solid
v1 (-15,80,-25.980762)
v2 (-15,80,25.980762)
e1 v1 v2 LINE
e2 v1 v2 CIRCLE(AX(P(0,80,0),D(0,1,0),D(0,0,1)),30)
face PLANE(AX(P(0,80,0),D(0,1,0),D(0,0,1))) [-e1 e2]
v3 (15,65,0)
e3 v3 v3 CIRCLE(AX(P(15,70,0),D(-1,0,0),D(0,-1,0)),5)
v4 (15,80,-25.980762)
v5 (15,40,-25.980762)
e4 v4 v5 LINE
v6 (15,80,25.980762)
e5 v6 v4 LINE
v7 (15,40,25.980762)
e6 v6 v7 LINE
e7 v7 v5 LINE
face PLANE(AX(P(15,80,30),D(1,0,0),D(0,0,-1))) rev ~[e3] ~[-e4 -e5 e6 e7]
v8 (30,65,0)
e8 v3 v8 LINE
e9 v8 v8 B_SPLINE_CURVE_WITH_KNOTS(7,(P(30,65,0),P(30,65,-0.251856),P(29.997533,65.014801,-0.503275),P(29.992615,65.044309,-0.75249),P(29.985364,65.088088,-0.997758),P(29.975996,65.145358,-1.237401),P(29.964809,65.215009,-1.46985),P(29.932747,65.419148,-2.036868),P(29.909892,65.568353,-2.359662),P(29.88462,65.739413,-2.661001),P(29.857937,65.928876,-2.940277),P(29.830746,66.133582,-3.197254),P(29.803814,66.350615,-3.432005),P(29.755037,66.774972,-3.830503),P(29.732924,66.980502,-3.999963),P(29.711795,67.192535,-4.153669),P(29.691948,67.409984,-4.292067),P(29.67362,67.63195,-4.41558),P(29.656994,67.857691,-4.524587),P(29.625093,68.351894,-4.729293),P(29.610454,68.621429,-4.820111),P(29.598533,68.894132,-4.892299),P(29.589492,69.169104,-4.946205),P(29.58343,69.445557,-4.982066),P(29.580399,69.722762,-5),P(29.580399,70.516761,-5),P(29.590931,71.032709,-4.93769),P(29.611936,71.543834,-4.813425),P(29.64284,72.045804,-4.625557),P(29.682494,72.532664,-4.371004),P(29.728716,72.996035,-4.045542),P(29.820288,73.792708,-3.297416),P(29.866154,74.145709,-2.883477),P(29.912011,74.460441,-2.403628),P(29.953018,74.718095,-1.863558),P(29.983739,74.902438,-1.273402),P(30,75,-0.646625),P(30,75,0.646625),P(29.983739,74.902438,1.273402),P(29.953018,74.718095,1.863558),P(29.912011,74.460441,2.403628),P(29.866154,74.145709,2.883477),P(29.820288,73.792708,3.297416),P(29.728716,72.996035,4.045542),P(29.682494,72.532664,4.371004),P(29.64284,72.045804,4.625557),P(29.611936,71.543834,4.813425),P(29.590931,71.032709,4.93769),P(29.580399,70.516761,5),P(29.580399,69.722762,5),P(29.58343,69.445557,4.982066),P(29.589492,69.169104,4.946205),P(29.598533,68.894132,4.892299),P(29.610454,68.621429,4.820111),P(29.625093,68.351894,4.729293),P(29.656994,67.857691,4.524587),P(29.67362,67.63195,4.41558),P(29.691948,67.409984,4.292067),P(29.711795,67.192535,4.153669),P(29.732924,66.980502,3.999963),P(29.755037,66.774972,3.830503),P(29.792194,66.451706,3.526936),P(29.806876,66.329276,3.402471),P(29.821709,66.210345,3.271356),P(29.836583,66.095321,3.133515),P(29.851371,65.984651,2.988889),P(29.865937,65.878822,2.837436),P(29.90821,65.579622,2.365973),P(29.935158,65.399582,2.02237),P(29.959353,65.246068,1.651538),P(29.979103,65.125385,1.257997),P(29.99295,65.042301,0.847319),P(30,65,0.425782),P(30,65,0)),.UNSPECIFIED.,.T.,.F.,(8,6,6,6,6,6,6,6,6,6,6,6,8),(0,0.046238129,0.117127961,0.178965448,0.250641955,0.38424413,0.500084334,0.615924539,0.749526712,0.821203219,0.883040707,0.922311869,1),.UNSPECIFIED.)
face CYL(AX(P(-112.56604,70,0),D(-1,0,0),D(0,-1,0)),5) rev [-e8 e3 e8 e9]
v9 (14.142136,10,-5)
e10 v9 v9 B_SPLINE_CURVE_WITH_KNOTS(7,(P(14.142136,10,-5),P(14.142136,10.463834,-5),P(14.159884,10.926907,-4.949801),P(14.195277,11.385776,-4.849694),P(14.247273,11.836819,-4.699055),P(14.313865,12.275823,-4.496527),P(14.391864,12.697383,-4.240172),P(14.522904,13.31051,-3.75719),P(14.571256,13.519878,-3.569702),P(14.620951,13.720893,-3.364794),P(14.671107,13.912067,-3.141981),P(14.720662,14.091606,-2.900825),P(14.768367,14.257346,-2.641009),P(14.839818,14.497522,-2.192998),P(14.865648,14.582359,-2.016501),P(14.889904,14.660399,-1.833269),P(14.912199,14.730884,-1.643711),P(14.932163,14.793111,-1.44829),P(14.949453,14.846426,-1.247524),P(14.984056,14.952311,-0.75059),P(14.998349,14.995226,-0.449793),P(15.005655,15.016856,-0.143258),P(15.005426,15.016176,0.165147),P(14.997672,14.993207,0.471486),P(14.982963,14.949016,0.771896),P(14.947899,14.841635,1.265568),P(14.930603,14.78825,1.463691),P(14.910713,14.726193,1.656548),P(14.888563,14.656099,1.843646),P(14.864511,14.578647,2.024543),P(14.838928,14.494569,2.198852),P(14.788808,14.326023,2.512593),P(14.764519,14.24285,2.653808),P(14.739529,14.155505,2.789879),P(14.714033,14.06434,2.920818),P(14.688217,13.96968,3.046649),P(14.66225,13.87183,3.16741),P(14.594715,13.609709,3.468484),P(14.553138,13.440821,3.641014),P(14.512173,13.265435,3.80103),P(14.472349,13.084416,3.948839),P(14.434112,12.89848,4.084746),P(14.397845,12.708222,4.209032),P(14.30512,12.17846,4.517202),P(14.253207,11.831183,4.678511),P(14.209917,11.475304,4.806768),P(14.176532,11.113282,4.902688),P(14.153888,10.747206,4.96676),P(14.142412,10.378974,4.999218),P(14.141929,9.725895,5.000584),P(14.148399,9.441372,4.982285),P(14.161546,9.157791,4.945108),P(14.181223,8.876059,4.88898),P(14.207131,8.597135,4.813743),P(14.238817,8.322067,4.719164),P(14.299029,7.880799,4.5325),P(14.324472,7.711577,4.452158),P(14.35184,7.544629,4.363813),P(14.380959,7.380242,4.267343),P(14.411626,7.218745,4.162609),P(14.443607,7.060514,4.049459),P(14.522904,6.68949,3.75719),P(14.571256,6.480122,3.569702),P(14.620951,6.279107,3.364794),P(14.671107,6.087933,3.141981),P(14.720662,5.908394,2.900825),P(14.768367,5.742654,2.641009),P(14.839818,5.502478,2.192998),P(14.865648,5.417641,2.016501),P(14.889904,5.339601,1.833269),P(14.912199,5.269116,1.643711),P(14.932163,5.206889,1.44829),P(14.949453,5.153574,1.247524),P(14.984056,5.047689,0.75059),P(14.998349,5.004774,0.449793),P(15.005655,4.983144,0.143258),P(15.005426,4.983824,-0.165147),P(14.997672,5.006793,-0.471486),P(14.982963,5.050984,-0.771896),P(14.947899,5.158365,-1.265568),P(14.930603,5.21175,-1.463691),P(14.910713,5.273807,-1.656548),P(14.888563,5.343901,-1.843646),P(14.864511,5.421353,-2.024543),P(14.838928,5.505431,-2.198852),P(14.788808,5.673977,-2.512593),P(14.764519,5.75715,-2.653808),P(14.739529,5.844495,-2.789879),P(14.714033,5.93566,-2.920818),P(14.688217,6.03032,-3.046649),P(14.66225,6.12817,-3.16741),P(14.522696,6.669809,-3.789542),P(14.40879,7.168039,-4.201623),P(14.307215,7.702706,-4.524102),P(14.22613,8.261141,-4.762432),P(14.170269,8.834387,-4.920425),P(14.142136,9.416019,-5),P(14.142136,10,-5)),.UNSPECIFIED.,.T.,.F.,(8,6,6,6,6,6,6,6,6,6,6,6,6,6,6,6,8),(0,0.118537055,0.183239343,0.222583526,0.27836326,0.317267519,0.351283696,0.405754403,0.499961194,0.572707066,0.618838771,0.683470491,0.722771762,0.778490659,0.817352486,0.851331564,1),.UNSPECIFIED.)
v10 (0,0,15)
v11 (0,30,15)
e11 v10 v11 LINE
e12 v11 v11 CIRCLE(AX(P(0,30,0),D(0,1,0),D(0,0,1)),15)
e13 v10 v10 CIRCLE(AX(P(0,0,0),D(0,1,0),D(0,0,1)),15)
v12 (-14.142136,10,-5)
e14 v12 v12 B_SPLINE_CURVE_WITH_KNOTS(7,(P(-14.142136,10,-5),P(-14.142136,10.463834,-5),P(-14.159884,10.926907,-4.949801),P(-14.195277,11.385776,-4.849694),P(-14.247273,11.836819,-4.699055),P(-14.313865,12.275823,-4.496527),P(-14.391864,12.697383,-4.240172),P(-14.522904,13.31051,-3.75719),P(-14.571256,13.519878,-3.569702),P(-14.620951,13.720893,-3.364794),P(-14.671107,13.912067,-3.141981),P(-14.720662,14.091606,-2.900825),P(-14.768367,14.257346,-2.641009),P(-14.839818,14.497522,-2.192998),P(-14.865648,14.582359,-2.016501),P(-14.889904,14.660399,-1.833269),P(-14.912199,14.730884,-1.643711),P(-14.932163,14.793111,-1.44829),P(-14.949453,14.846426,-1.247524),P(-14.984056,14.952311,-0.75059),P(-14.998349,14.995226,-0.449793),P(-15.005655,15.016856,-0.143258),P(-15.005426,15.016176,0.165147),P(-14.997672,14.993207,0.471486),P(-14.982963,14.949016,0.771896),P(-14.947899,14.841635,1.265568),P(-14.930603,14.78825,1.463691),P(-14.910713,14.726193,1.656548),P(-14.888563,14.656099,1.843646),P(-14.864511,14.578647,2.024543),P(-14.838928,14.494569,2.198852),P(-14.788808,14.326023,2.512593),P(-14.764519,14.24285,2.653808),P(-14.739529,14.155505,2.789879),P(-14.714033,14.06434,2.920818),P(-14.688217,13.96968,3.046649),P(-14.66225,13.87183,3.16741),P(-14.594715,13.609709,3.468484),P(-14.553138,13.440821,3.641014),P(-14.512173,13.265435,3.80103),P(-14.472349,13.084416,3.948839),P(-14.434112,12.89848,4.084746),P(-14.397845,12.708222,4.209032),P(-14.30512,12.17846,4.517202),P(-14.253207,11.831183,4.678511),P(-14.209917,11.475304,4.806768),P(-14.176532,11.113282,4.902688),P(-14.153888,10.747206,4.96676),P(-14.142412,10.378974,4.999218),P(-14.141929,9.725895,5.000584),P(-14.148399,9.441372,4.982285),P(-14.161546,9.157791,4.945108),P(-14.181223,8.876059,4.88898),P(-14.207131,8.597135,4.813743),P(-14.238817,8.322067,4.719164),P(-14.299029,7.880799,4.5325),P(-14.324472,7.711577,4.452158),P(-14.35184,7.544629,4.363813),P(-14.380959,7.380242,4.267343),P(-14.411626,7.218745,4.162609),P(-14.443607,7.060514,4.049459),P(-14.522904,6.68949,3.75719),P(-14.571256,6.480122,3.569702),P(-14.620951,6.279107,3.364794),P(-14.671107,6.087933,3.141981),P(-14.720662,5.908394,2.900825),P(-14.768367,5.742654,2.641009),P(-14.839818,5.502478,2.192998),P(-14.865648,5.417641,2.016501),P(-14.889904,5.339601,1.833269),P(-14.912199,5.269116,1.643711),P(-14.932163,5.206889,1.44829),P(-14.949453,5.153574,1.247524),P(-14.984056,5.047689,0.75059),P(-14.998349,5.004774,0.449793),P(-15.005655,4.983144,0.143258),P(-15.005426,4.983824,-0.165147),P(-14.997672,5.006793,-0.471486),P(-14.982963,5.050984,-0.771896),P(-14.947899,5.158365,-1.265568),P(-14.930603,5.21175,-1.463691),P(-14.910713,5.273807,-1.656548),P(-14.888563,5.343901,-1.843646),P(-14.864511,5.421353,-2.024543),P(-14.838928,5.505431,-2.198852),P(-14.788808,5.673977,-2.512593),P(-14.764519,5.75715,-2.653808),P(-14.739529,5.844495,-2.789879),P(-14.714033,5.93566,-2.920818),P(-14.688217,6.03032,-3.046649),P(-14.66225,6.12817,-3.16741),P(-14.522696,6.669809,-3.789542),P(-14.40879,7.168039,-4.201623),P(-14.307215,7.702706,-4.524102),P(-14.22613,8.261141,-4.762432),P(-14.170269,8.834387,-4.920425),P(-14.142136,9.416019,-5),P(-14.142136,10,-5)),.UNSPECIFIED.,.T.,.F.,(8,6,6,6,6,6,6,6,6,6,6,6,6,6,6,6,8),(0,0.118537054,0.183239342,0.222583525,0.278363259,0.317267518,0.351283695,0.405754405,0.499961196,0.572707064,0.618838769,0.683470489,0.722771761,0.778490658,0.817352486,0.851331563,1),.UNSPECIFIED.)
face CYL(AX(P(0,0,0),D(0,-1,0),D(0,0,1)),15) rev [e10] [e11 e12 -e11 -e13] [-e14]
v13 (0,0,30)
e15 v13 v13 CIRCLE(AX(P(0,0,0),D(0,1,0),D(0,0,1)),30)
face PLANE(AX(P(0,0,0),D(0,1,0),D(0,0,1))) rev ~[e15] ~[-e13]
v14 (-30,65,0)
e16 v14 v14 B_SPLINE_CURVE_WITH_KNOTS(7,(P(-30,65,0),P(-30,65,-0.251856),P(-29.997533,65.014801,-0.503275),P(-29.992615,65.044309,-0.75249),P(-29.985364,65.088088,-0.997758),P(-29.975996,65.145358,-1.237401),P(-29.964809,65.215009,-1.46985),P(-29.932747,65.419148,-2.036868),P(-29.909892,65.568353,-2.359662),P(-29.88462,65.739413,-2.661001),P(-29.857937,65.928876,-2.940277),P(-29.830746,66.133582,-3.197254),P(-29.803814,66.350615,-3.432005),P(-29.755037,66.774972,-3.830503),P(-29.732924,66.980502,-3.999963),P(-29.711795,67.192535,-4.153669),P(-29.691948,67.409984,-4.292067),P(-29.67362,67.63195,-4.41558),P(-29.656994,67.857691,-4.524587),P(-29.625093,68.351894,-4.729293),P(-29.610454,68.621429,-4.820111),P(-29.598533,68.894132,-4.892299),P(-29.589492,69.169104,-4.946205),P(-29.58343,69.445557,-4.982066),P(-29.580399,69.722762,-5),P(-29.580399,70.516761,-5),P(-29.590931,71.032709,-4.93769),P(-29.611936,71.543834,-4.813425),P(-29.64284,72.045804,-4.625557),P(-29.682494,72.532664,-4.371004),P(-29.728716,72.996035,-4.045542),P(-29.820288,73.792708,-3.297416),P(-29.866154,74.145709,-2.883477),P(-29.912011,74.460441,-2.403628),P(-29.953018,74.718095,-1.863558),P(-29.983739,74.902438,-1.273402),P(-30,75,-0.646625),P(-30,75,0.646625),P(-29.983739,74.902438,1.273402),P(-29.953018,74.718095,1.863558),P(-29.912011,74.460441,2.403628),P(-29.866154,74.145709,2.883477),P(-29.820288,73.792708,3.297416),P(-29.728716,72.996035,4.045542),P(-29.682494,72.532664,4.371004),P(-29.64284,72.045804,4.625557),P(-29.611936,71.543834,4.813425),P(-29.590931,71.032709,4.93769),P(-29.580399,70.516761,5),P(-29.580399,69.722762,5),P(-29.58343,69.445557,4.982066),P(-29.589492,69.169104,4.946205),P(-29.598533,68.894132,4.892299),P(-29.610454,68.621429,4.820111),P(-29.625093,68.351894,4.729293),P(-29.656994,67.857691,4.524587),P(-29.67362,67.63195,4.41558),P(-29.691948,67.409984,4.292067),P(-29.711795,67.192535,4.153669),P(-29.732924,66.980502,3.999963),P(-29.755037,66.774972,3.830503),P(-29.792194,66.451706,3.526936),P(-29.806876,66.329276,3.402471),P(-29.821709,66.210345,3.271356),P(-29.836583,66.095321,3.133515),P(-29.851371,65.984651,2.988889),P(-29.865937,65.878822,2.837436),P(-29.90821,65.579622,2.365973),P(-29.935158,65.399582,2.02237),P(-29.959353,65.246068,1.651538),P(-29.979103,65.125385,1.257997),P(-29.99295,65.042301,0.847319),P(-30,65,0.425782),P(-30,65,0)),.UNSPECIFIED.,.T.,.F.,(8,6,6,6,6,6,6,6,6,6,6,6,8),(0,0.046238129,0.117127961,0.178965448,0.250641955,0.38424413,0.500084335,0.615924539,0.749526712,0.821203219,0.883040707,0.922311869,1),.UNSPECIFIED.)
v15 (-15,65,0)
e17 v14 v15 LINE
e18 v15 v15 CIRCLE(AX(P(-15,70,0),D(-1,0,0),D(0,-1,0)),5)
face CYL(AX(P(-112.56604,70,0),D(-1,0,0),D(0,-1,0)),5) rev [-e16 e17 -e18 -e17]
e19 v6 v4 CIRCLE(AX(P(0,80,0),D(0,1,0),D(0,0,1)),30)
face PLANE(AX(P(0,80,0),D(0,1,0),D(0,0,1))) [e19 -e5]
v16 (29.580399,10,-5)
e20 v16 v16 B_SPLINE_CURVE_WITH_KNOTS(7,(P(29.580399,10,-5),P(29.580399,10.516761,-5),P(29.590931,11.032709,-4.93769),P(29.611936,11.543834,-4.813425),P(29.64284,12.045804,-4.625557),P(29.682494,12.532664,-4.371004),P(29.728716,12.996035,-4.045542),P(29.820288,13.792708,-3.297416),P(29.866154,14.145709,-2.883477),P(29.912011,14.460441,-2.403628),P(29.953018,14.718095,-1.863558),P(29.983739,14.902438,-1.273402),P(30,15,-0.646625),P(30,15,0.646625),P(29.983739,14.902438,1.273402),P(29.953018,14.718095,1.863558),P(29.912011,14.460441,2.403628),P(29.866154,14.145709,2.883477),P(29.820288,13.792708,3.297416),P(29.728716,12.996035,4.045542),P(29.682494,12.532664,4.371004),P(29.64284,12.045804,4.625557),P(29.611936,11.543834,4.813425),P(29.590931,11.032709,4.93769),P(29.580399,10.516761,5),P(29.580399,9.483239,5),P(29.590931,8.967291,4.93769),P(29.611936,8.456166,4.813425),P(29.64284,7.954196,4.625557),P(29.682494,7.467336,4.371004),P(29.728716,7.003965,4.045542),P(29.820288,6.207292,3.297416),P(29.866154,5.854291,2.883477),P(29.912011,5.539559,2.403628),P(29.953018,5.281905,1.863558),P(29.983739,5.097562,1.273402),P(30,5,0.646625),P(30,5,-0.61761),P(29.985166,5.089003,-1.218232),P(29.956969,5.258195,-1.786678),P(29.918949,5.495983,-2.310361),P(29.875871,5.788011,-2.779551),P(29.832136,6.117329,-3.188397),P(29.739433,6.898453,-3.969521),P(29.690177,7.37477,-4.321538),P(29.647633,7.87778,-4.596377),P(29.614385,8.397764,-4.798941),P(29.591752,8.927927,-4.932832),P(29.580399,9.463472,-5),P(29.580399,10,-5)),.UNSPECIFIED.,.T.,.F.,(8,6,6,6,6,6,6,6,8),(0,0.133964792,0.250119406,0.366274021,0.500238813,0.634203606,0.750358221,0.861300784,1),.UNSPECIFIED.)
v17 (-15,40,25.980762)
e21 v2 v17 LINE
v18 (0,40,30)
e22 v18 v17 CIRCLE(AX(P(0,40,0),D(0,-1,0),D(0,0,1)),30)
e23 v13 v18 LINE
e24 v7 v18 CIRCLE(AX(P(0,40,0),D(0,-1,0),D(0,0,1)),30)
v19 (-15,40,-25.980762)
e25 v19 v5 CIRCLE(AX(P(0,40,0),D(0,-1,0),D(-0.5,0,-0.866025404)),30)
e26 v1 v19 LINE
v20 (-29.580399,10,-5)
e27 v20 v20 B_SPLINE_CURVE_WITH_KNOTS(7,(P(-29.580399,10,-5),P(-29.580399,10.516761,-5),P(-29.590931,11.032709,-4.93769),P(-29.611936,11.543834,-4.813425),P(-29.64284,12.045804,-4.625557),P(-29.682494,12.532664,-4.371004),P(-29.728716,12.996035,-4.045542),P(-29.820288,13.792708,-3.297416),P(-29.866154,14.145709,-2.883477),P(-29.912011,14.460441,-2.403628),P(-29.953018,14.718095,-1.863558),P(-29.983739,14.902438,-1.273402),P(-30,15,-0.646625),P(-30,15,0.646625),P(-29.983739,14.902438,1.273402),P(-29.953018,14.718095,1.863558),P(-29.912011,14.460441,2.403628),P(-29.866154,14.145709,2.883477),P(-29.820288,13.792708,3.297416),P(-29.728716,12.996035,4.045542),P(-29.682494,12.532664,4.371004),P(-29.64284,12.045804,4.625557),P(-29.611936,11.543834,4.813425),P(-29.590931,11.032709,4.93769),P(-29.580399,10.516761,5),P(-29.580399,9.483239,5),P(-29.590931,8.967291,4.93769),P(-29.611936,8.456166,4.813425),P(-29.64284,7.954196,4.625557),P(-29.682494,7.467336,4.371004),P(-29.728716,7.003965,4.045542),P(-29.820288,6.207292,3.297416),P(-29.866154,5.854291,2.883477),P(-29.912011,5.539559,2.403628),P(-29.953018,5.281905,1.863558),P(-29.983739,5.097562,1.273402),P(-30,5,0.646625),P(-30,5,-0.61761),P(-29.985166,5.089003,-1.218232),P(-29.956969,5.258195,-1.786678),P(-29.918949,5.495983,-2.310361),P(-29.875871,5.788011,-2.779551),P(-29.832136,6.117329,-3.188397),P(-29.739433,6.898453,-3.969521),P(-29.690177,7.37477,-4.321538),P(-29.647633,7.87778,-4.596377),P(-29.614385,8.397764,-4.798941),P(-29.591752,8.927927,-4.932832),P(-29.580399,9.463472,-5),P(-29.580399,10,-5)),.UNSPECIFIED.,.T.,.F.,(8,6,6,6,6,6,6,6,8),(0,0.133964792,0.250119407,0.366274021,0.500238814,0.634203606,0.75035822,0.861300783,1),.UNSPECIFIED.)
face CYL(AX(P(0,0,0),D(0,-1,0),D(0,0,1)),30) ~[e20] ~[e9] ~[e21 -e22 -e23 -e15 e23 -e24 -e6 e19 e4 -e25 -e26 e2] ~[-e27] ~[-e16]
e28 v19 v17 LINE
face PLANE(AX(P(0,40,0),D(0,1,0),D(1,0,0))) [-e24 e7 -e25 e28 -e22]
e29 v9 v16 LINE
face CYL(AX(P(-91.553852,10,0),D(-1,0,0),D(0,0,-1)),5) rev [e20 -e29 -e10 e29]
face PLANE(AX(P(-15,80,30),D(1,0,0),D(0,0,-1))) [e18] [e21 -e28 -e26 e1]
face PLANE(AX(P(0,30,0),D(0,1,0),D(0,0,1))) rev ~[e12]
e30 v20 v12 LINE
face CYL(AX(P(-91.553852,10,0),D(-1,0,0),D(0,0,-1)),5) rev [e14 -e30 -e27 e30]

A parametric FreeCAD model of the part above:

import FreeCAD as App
import Part
import Sketcher


def add_polygon(sketch, points):
    """Adds a closed chain of lines whose ends are joined by coincident constraints."""
    first, n = sketch.GeometryCount, len(points)
    for a, b in zip(points, points[1:] + points[:1]):
        sketch.addGeometry(Part.LineSegment(App.Vector(*a, 0), App.Vector(*b, 0)), False)
    for i in range(n):
        sketch.addConstraint(Sketcher.Constraint("Coincident", first + i, 2, first + (i + 1) % n, 1))

doc = App.newDocument("Part")
body = doc.addObject("PartDesign::Body", "Body")

sketch1 = doc.addObject("Sketcher::SketchObject", "Sketch")
body.addObject(sketch1)
sketch1.AttachmentSupport = (doc.XZ_Plane, [""])
sketch1.MapMode = "FlatFace"
sketch1.addGeometry([
    Part.Circle(App.Vector(0, 0, 0), App.Vector(0, 0, 1), 30),
    Part.Circle(App.Vector(0, 0, 0), App.Vector(0, 0, 1), 15),
], False)
sketch1.addConstraint([
    Sketcher.Constraint("Coincident", 0, 3, -1, 1),
    Sketcher.Constraint("Coincident", 1, 3, -1, 1),
    Sketcher.Constraint("Diameter", 0, 60.0),
    Sketcher.Constraint("Diameter", 1, 30.0),
])
pad1 = doc.addObject("PartDesign::Pad", "Pad")
body.addObject(pad1)
pad1.Profile = sketch1
pad1.Length = 80
pad1.Reversed = True

sketch2 = doc.addObject("Sketcher::SketchObject", "Sketch001")
body.addObject(sketch2)
sketch2.AttachmentSupport = (doc.XZ_Plane, [""])
sketch2.MapMode = "FlatFace"
sketch2.AttachmentOffset = App.Placement(App.Vector(0, 0, -80), App.Rotation())
add_polygon(sketch2, [(-15, -30), (-15, 30), (15, 30), (15, -30)])
sketch2.addConstraint([
    Sketcher.Constraint("Vertical", 0),
    Sketcher.Constraint("Horizontal", 1),
    Sketcher.Constraint("Vertical", 2),
    Sketcher.Constraint("Horizontal", 3),
    Sketcher.Constraint("Symmetric", 0, 2, 2, 2, -1, 1),
    Sketcher.Constraint("DistanceX", 1, 1, 1, 2, 30.0),
    Sketcher.Constraint("DistanceY", 0, 1, 0, 2, 60.0),
])
pocket1 = doc.addObject("PartDesign::Pocket", "Pocket")
body.addObject(pocket1)
pocket1.Profile = sketch2
pocket1.Length = 40
pocket1.Reversed = True

sketch3 = doc.addObject("Sketcher::SketchObject", "Sketch002")
body.addObject(sketch3)
sketch3.AttachmentSupport = (doc.YZ_Plane, [""])
sketch3.MapMode = "FlatFace"
sketch3.AttachmentOffset = App.Placement(App.Vector(0, 0, -15), App.Rotation())
sketch3.addGeometry(Part.Circle(App.Vector(70, 0, 0), App.Vector(0, 0, 1), 5), False)
sketch3.addConstraint([
    Sketcher.Constraint("PointOnObject", 0, 3, -1),
    Sketcher.Constraint("Diameter", 0, 10.0),
    Sketcher.Constraint("DistanceX", -1, 1, 0, 3, 70.0),
])
pocket2 = doc.addObject("PartDesign::Pocket", "Pocket001")
body.addObject(pocket2)
pocket2.Profile = sketch3
pocket2.Type = "ThroughAll"
pocket2.Midplane = True

sketch4 = doc.addObject("Sketcher::SketchObject", "Sketch003")
body.addObject(sketch4)
sketch4.AttachmentSupport = (doc.XZ_Plane, [""])
sketch4.MapMode = "FlatFace"
sketch4.AttachmentOffset = App.Placement(App.Vector(0, 0, -30), App.Rotation())
sketch4.addGeometry(Part.Circle(App.Vector(0, 0, 0), App.Vector(0, 0, 1), 15), False)
sketch4.addConstraint([
    Sketcher.Constraint("Coincident", 0, 3, -1, 1),
    Sketcher.Constraint("Diameter", 0, 30.0),
])
pad2 = doc.addObject("PartDesign::Pad", "Pad001")
body.addObject(pad2)
pad2.Profile = sketch4
pad2.Length = 10
pad2.Reversed = True

sketch5 = doc.addObject("Sketcher::SketchObject", "Sketch004")
body.addObject(sketch5)
sketch5.AttachmentSupport = (doc.YZ_Plane, [""])
sketch5.MapMode = "FlatFace"
sketch5.addGeometry(Part.Circle(App.Vector(10, 0, 0), App.Vector(0, 0, 1), 5), False)
sketch5.addConstraint([
    Sketcher.Constraint("PointOnObject", 0, 3, -1),
    Sketcher.Constraint("Diameter", 0, 10.0),
    Sketcher.Constraint("DistanceX", -1, 1, 0, 3, 10.0),
])
pocket3 = doc.addObject("PartDesign::Pocket", "Pocket002")
body.addObject(pocket3)
pocket3.Profile = sketch5
pocket3.Type = "ThroughAll"
pocket3.Midplane = True

doc.recompute()
